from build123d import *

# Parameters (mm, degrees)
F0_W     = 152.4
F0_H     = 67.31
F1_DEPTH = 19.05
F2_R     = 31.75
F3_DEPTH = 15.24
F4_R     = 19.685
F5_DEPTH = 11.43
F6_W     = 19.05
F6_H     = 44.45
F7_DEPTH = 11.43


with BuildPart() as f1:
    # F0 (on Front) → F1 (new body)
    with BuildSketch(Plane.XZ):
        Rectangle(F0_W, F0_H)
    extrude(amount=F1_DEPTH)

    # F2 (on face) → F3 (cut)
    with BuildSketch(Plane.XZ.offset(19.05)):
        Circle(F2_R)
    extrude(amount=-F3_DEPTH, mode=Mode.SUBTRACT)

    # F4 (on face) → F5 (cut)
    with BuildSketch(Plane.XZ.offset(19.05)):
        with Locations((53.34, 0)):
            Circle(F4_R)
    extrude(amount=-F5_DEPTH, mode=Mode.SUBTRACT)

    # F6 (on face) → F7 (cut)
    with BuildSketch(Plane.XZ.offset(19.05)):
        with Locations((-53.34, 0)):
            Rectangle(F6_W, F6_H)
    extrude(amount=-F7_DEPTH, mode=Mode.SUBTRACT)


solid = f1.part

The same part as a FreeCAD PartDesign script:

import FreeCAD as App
import Part
import Sketcher
from FreeCAD import Vector
Q = App.Units.Quantity

doc = App.newDocument("Part")
body = doc.addObject("PartDesign::Body", "Body")

sketch1 = doc.addObject("Sketcher::SketchObject", "Sketch")
body.addObject(sketch1)
sketch1.AttachmentSupport = (doc.XZ_Plane, [""])
sketch1.MapMode = "FlatFace"
sketch1.addGeometry(Part.LineSegment(Vector(-76.2, 33.655, 0), Vector(-76.2, -33.655, 0)), False)
sketch1.addGeometry(Part.LineSegment(Vector(-76.2, -33.655, 0), Vector(76.2, -33.655, 0)), False)
sketch1.addGeometry(Part.LineSegment(Vector(76.2, -33.655, 0), Vector(76.2, 33.655, 0)), False)
sketch1.addGeometry(Part.LineSegment(Vector(76.2, 33.655, 0), Vector(-76.2, 33.655, 0)), False)
sketch1.addConstraint(Sketcher.Constraint("Coincident", 0, 2, 1, 1))
sketch1.addConstraint(Sketcher.Constraint("Coincident", 1, 2, 2, 1))
sketch1.addConstraint(Sketcher.Constraint("Coincident", 2, 2, 3, 1))
sketch1.addConstraint(Sketcher.Constraint("Coincident", 3, 2, 0, 1))
sketch1.addConstraint(Sketcher.Constraint("Vertical", 0))
sketch1.addConstraint(Sketcher.Constraint("Horizontal", 1))
sketch1.addConstraint(Sketcher.Constraint("Vertical", 2))
sketch1.addConstraint(Sketcher.Constraint("Horizontal", 3))
sketch1.addConstraint(Sketcher.Constraint("Symmetric", 0, 2, 2, 2, -1, 1))
sketch1.addConstraint(Sketcher.Constraint("DistanceX", 1, 1, 1, 2, Q("6 in")))
sketch1.addConstraint(Sketcher.Constraint("DistanceY", 0, 2, 0, 1, Q("2.65 in")))
pad1 = doc.addObject("PartDesign::Pad", "Pad")
body.addObject(pad1)
pad1.Profile = sketch1
pad1.Length = Q("0.75 in")

sketch2 = doc.addObject("Sketcher::SketchObject", "Sketch001")
body.addObject(sketch2)
sketch2.AttachmentSupport = (doc.XZ_Plane, [""])
sketch2.MapMode = "FlatFace"
sketch2.AttachmentOffset = App.Placement(Vector(0, 0, 0.75 * 25.4), App.Rotation())
sketch2.addGeometry(Part.Circle(Vector(0, 0, 0), Vector(0, 0, 1), 31.75), False)
sketch2.addConstraint(Sketcher.Constraint("Coincident", 0, 3, -1, 1))
sketch2.addConstraint(Sketcher.Constraint("Diameter", 0, Q("2.5 in")))
pocket1 = doc.addObject("PartDesign::Pocket", "Pocket")
body.addObject(pocket1)
pocket1.Profile = sketch2
pocket1.Length = Q("0.6 in")

sketch3 = doc.addObject("Sketcher::SketchObject", "Sketch002")
body.addObject(sketch3)
sketch3.AttachmentSupport = (doc.XZ_Plane, [""])
sketch3.MapMode = "FlatFace"
sketch3.AttachmentOffset = App.Placement(Vector(0, 0, 0.75 * 25.4), App.Rotation())
sketch3.addGeometry(Part.Circle(Vector(53.34, 0, 0), Vector(0, 0, 1), 19.685), False)
sketch3.addConstraint(Sketcher.Constraint("PointOnObject", 0, 3, -1))
sketch3.addConstraint(Sketcher.Constraint("Diameter", 0, Q("1.55 in")))
sketch3.addConstraint(Sketcher.Constraint("DistanceX", -1, 1, 0, 3, Q("2.1 in")))
pocket2 = doc.addObject("PartDesign::Pocket", "Pocket001")
body.addObject(pocket2)
pocket2.Profile = sketch3
pocket2.Length = Q("0.45 in")

sketch4 = doc.addObject("Sketcher::SketchObject", "Sketch003")
body.addObject(sketch4)
sketch4.AttachmentSupport = (doc.XZ_Plane, [""])
sketch4.MapMode = "FlatFace"
sketch4.AttachmentOffset = App.Placement(Vector(0, 0, 0.75 * 25.4), App.Rotation())
sketch4.addGeometry(Part.LineSegment(Vector(-62.865, 22.225, 0), Vector(-62.865, -22.225, 0)), False)
sketch4.addGeometry(Part.LineSegment(Vector(-62.865, -22.225, 0), Vector(-43.815, -22.225, 0)), False)
sketch4.addGeometry(Part.LineSegment(Vector(-43.815, -22.225, 0), Vector(-43.815, 22.225, 0)), False)
sketch4.addGeometry(Part.LineSegment(Vector(-43.815, 22.225, 0), Vector(-62.865, 22.225, 0)), False)
sketch4.addConstraint(Sketcher.Constraint("Coincident", 0, 2, 1, 1))
sketch4.addConstraint(Sketcher.Constraint("Coincident", 1, 2, 2, 1))
sketch4.addConstraint(Sketcher.Constraint("Coincident", 2, 2, 3, 1))
sketch4.addConstraint(Sketcher.Constraint("Coincident", 3, 2, 0, 1))
sketch4.addConstraint(Sketcher.Constraint("Vertical", 0))
sketch4.addConstraint(Sketcher.Constraint("Horizontal", 1))
sketch4.addConstraint(Sketcher.Constraint("Vertical", 2))
sketch4.addConstraint(Sketcher.Constraint("Horizontal", 3))
sketch4.addConstraint(Sketcher.Constraint("DistanceX", 1, 1, 1, 2, Q("0.75 in")))
sketch4.addConstraint(Sketcher.Constraint("DistanceY", 0, 2, 0, 1, Q("1.75 in")))
sketch4.addConstraint(Sketcher.Constraint("DistanceX", 0, 2, -1, 1, Q("2.475 in")))
sketch4.addConstraint(Sketcher.Constraint("DistanceY", 0, 2, -1, 1, Q("0.875 in")))
pocket3 = doc.addObject("PartDesign::Pocket", "Pocket002")
body.addObject(pocket3)
pocket3.Profile = sketch4
pocket3.Length = Q("0.45 in")

doc.recompute()
